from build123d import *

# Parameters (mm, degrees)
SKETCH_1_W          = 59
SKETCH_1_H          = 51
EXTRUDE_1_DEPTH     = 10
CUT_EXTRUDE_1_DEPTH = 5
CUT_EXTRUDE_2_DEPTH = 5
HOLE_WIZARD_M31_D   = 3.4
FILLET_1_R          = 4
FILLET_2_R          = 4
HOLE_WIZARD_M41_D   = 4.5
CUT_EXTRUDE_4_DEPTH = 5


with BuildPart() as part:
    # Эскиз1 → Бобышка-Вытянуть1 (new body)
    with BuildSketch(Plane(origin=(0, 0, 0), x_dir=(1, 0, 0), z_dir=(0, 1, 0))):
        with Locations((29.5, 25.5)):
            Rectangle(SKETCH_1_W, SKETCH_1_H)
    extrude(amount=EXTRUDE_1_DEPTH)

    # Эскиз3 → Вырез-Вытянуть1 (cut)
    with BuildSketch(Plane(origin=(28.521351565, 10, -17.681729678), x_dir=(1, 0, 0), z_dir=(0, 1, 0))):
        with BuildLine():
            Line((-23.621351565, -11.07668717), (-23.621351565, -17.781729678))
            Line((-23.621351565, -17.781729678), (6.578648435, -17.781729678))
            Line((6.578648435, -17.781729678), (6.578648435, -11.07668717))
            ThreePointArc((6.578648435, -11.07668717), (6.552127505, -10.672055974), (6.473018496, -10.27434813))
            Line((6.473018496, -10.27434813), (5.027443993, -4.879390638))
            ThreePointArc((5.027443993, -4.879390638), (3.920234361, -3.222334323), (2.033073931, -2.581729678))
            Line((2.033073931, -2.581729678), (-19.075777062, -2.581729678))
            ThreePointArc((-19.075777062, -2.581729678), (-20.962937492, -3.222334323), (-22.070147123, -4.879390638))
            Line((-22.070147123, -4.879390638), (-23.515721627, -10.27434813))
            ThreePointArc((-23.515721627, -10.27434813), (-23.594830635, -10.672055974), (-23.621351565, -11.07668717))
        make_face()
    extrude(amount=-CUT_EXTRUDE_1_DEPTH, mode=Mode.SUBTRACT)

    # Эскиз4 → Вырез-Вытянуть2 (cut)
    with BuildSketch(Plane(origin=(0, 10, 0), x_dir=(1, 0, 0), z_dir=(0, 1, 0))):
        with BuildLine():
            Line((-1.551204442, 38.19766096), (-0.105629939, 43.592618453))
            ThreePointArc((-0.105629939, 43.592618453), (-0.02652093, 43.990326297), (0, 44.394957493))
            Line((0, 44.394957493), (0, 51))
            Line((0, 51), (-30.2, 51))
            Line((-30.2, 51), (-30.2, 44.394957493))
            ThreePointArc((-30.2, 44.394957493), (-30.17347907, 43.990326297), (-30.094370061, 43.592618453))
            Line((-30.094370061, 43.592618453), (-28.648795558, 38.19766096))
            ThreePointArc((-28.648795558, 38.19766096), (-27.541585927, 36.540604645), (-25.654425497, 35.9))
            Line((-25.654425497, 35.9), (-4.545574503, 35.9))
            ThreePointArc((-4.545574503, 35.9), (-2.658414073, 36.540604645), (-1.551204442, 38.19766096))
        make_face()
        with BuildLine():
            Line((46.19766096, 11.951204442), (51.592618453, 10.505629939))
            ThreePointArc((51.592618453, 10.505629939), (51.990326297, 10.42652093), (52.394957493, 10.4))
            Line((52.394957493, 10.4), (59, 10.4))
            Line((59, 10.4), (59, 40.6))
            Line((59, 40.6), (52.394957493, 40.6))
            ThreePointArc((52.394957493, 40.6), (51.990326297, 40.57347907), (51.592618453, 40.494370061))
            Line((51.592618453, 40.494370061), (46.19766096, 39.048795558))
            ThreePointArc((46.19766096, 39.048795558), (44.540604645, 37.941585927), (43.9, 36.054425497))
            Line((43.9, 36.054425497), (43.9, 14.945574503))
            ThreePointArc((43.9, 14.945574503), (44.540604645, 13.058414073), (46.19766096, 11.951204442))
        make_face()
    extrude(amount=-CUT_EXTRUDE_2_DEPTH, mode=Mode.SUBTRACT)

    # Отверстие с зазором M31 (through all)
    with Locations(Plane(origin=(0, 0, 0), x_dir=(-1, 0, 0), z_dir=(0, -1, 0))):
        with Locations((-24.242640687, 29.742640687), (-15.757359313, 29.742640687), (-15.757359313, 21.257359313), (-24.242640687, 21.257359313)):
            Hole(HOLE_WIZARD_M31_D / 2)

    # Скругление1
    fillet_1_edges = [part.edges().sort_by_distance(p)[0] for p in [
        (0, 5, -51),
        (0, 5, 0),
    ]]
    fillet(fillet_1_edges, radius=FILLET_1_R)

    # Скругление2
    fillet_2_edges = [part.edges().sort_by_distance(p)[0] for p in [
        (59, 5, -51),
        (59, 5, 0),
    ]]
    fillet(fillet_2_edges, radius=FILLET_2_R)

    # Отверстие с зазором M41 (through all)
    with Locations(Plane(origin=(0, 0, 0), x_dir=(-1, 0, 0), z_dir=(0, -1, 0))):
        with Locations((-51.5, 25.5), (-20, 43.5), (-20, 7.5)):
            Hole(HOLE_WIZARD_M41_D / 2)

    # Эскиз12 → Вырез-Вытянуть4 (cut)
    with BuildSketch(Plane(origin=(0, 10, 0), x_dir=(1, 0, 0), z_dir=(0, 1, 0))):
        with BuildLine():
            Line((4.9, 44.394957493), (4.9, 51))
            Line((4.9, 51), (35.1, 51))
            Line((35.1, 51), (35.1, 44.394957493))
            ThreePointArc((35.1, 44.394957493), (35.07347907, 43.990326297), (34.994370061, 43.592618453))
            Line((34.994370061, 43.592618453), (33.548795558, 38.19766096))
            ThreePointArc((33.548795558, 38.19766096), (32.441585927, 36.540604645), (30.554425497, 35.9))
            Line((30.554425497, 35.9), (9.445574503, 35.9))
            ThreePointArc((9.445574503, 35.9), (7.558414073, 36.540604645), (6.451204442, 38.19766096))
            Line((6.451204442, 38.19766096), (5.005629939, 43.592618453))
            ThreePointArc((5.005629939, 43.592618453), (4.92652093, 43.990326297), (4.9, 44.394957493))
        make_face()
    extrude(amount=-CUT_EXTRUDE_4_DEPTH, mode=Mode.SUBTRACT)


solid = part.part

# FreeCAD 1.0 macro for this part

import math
import FreeCAD as App
import Part
import Sketcher
from FreeCAD import Vector
Q = App.Units.Quantity


def edges_at(feature, points):
    """Names of the edges that pass closest to the given points."""
    edges = feature.Shape.Edges
    near = lambda p: min(range(len(edges)), key=lambda i: edges[i].distToShape(Part.Vertex(*p))[0])
    return sorted({f"Edge{near(p) + 1}" for p in points})

doc = App.newDocument("Part")
body = doc.addObject("PartDesign::Body", "Body")

# Sketch on XZ plane
sketch1 = doc.addObject("Sketcher::SketchObject", "Sketch")
body.addObject(sketch1)
sketch1.AttachmentSupport = (doc.XZ_Plane, [""])
sketch1.MapMode = "FlatFace"
sketch1.addGeometry([
    Part.LineSegment(Vector(0, -51, 0), Vector(0, 0, 0)),
    Part.LineSegment(Vector(0, 0, 0), Vector(59, 0, 0)),
    Part.LineSegment(Vector(59, 0, 0), Vector(59, -51, 0)),
    Part.LineSegment(Vector(59, -51, 0), Vector(0, -51, 0)),
], False)
sketch1.addConstraint([
    Sketcher.Constraint("Coincident", 0, 2, 1, 1),
    Sketcher.Constraint("Coincident", 1, 2, 2, 1),
    Sketcher.Constraint("Coincident", 2, 2, 3, 1),
    Sketcher.Constraint("Coincident", 3, 2, 0, 1),
    Sketcher.Constraint("Vertical", 0),
    Sketcher.Constraint("Horizontal", 1),
    Sketcher.Constraint("Vertical", 2),
    Sketcher.Constraint("Horizontal", 3),
    Sketcher.Constraint("Coincident", 0, 2, -1, 1),
    Sketcher.Constraint("DistanceX", 1, 1, 1, 2, Q("59 mm")),
    Sketcher.Constraint("DistanceY", 0, 1, 0, 2, Q("51 mm")),
])
pad1 = doc.addObject("PartDesign::Pad", "Pad")
body.addObject(pad1)
pad1.Profile = sketch1
pad1.Length = 10
pad1.Reversed = True

# Sketch on XZ plane
sketch2 = doc.addObject("Sketcher::SketchObject", "Sketch001")
body.addObject(sketch2)
sketch2.AttachmentSupport = (doc.XZ_Plane, [""])
sketch2.MapMode = "FlatFace"
sketch2.AttachmentOffset = App.Placement(Vector(0, 0, -10), App.Rotation())
sketch2.addGeometry([
    Part.LineSegment(Vector(4.9, -6.6, 0), Vector(4.9, 0.1, 0)),  # 0
    Part.LineSegment(Vector(4.9, 0.1, 0), Vector(35.1, 0.1, 0)),  # 1
    Part.LineSegment(Vector(35.1, 0.1, 0), Vector(35.1, -6.6, 0)),  # 2
    Part.ArcOfCircle(Part.Circle(Vector(32, -6.6, 0), Vector(0, 0, 1), 3.1), math.radians(-15), math.radians(0)),  # 3
    Part.LineSegment(Vector(35, -7.4, 0), Vector(33.5, -12.8, 0)),  # 4
    Part.ArcOfCircle(Part.Circle(Vector(30.6, -12, 0), Vector(0, 0, 1), 3.1), math.radians(-90), math.radians(-15)),  # 5
    Part.LineSegment(Vector(30.6, -15.1, 0), Vector(9.4, -15.1, 0)),  # 6
    Part.ArcOfCircle(Part.Circle(Vector(9.4, -12, 0), Vector(0, 0, 1), 3.1), math.radians(-165), math.radians(-90)),  # 7
    Part.LineSegment(Vector(6.5, -12.8, 0), Vector(5, -7.4, 0)),  # 8
    Part.ArcOfCircle(Part.Circle(Vector(8, -6.6, 0), Vector(0, 0, 1), 3.1), math.radians(-180), math.radians(-165)),  # 9
], False)
sketch2.addConstraint([
    Sketcher.Constraint("Coincident", 0, 2, 1, 1),
    Sketcher.Constraint("Coincident", 1, 2, 2, 1),
    Sketcher.Constraint("Tangent", 2, 2, 3, 2),
    Sketcher.Constraint("Tangent", 3, 1, 4, 1),
    Sketcher.Constraint("Tangent", 4, 2, 5, 2),
    Sketcher.Constraint("Tangent", 5, 1, 6, 1),
    Sketcher.Constraint("Tangent", 6, 2, 7, 2),
    Sketcher.Constraint("Tangent", 7, 1, 8, 1),
    Sketcher.Constraint("Tangent", 8, 2, 9, 2),
    Sketcher.Constraint("Tangent", 9, 1, 0, 1),
    Sketcher.Constraint("Vertical", 0),
    Sketcher.Constraint("Horizontal", 1),
    Sketcher.Constraint("Vertical", 2),
    Sketcher.Constraint("Horizontal", 6),
    Sketcher.Constraint("Equal", 3, 5),
    Sketcher.Constraint("Equal", 5, 7),
    Sketcher.Constraint("Equal", 7, 9),
    Sketcher.Constraint("Horizontal", 3, 3, 9, 3),
    Sketcher.Constraint("Horizontal", 4, 2, 7, 1),
    Sketcher.Constraint("Radius", 3, Q("3.1 mm")),
    Sketcher.Constraint("Angle", 4, Q("-105 deg")),
    Sketcher.Constraint("DistanceX", 1, 1, 1, 2, Q("30.2 mm")),
    Sketcher.Constraint("DistanceX", -1, 1, 3, 3, Q("32 mm")),
    Sketcher.Constraint("DistanceY", 5, 3, -1, 1, Q("12 mm")),
    Sketcher.Constraint("DistanceY", -1, 1, 0, 2, Q("0.1 mm")),
    Sketcher.Constraint("DistanceX", 6, 2, 6, 1, Q("21.108851 mm")),
])
pocket1 = doc.addObject("PartDesign::Pocket", "Pocket")
body.addObject(pocket1)
pocket1.Profile = sketch2
pocket1.Length = 5
pocket1.Reversed = True

# Sketch on XZ plane
sketch3 = doc.addObject("Sketcher::SketchObject", "Sketch002")
body.addObject(sketch3)
sketch3.AttachmentSupport = (doc.XZ_Plane, [""])
sketch3.MapMode = "FlatFace"
sketch3.AttachmentOffset = App.Placement(Vector(0, 0, -10), App.Rotation())
sketch3.addGeometry([
    Part.LineSegment(Vector(-1.6, -38.2, 0), Vector(-0.1, -43.6, 0)),  # 0
    Part.ArcOfCircle(Part.Circle(Vector(-3.1, -44.4, 0), Vector(0, 0, 1), 3.1), math.radians(0), math.radians(15)),  # 1
    Part.LineSegment(Vector(0, -44.4, 0), Vector(0, -51, 0)),  # 2
    Part.LineSegment(Vector(0, -51, 0), Vector(-30.2, -51, 0)),  # 3
    Part.LineSegment(Vector(-30.2, -51, 0), Vector(-30.2, -44.4, 0)),  # 4
    Part.ArcOfCircle(Part.Circle(Vector(-27.1, -44.4, 0), Vector(0, 0, 1), 3.1), math.radians(165), math.radians(180)),  # 5
    Part.LineSegment(Vector(-30.1, -43.6, 0), Vector(-28.6, -38.2, 0)),  # 6
    Part.ArcOfCircle(Part.Circle(Vector(-25.7, -39, 0), Vector(0, 0, 1), 3.1), math.radians(90), math.radians(165)),  # 7
    Part.LineSegment(Vector(-25.7, -35.9, 0), Vector(-4.5, -35.9, 0)),  # 8
    Part.ArcOfCircle(Part.Circle(Vector(-4.5, -39, 0), Vector(0, 0, 1), 3.1), math.radians(15), math.radians(90)),  # 9
    Part.LineSegment(Vector(46.2, -12, 0), Vector(51.6, -10.5, 0)),  # 10
    Part.ArcOfCircle(Part.Circle(Vector(52.4, -13.5, 0), Vector(0, 0, 1), 3.1), math.radians(90), math.radians(105)),  # 11
    Part.LineSegment(Vector(52.4, -10.4, 0), Vector(59, -10.4, 0)),  # 12
    Part.LineSegment(Vector(59, -10.4, 0), Vector(59, -40.6, 0)),  # 13
    Part.LineSegment(Vector(59, -40.6, 0), Vector(52.4, -40.6, 0)),  # 14
    Part.ArcOfCircle(Part.Circle(Vector(52.4, -37.5, 0), Vector(0, 0, 1), 3.1), math.radians(-105), math.radians(-90)),  # 15
    Part.LineSegment(Vector(51.6, -40.5, 0), Vector(46.2, -39, 0)),  # 16
    Part.ArcOfCircle(Part.Circle(Vector(47, -36.1, 0), Vector(0, 0, 1), 3.1), math.radians(180), math.radians(255)),  # 17
    Part.LineSegment(Vector(43.9, -36.1, 0), Vector(43.9, -14.9, 0)),  # 18
    Part.ArcOfCircle(Part.Circle(Vector(47, -14.9, 0), Vector(0, 0, 1), 3.1), math.radians(105), math.radians(180)),  # 19
], False)
sketch3.addConstraint([
    Sketcher.Constraint("Tangent", 0, 2, 1, 2),
    Sketcher.Constraint("Tangent", 1, 1, 2, 1),
    Sketcher.Constraint("Coincident", 2, 2, 3, 1),
    Sketcher.Constraint("Coincident", 3, 2, 4, 1),
    Sketcher.Constraint("Tangent", 4, 2, 5, 2),
    Sketcher.Constraint("Tangent", 5, 1, 6, 1),
    Sketcher.Constraint("Tangent", 6, 2, 7, 2),
    Sketcher.Constraint("Tangent", 7, 1, 8, 1),
    Sketcher.Constraint("Tangent", 8, 2, 9, 2),
    Sketcher.Constraint("Tangent", 9, 1, 0, 1),
    Sketcher.Constraint("Tangent", 10, 2, 11, 2),
    Sketcher.Constraint("Tangent", 11, 1, 12, 1),
    Sketcher.Constraint("Coincident", 12, 2, 13, 1),
    Sketcher.Constraint("Coincident", 13, 2, 14, 1),
    Sketcher.Constraint("Tangent", 14, 2, 15, 2),
    Sketcher.Constraint("Tangent", 15, 1, 16, 1),
    Sketcher.Constraint("Tangent", 16, 2, 17, 2),
    Sketcher.Constraint("Tangent", 17, 1, 18, 1),
    Sketcher.Constraint("Tangent", 18, 2, 19, 2),
    Sketcher.Constraint("Tangent", 19, 1, 10, 1),
    Sketcher.Constraint("Vertical", 2),
    Sketcher.Constraint("Horizontal", 3),
    Sketcher.Constraint("Vertical", 4),
    Sketcher.Constraint("Horizontal", 8),
    Sketcher.Constraint("Horizontal", 12),
    Sketcher.Constraint("Vertical", 13),
    Sketcher.Constraint("Horizontal", 14),
    Sketcher.Constraint("Vertical", 18),
    Sketcher.Constraint("Equal", 1, 5),
    Sketcher.Constraint("Equal", 5, 7),
    Sketcher.Constraint("Equal", 7, 9),
    Sketcher.Constraint("Equal", 9, 11),
    Sketcher.Constraint("Equal", 11, 15),
    Sketcher.Constraint("Equal", 15, 17),
    Sketcher.Constraint("Equal", 17, 19),
    Sketcher.Constraint("PointOnObject", 1, 1, -2),
    Sketcher.Constraint("Perpendicular", 0, 10),
    Sketcher.Constraint("Perpendicular", 6, 16),
    Sketcher.Constraint("Horizontal", 1, 3, 5, 3),
    Sketcher.Constraint("Horizontal", 0, 2, 5, 1),
    Sketcher.Constraint("Vertical", 11, 3, 15, 3),
    Sketcher.Constraint("Equal", 14, 2),
    Sketcher.Constraint("Equal", 3, 13),
    Sketcher.Constraint("Equal", 8, 18),
    Sketcher.Constraint("Radius", 1, Q("3.1 mm")),
    Sketcher.Constraint("Angle", 0, Q("-75 deg")),
    Sketcher.Constraint("DistanceX", 3, 2, 3, 1, Q("30.2 mm")),
    Sketcher.Constraint("DistanceY", 7, 3, -1, 1, Q("39 mm")),
    Sketcher.Constraint("DistanceX", -1, 1, 17, 3, Q("47 mm")),
    Sketcher.Constraint("DistanceY", 2, 2, -1, 1, Q("51 mm")),
    Sketcher.Constraint("DistanceY", 11, 3, -1, 1, Q("13.5 mm")),
    Sketcher.Constraint("DistanceX", 8, 1, 8, 2, Q("21.108851 mm")),
])
pocket2 = doc.addObject("PartDesign::Pocket", "Pocket001")
body.addObject(pocket2)
pocket2.Profile = sketch3
pocket2.Length = 5
pocket2.Reversed = True

# Sketch on XZ plane
sketch4 = doc.addObject("Sketcher::SketchObject", "Sketch003")
body.addObject(sketch4)
sketch4.AttachmentSupport = (doc.XZ_Plane, [""])
sketch4.MapMode = "FlatFace"
sketch4.addGeometry([
    Part.Circle(Vector(24.2, -29.7, 0), Vector(0, 0, 1), 1.7),
    Part.Circle(Vector(15.8, -29.7, 0), Vector(0, 0, 1), 1.7),
    Part.Circle(Vector(15.8, -21.3, 0), Vector(0, 0, 1), 1.7),
    Part.Circle(Vector(24.2, -21.3, 0), Vector(0, 0, 1), 1.7),
], False)
sketch4.addConstraint([
    Sketcher.Constraint("Equal", 0, 1),
    Sketcher.Constraint("Equal", 1, 2),
    Sketcher.Constraint("Equal", 2, 3),
    Sketcher.Constraint("Horizontal", 0, 3, 1, 3),
    Sketcher.Constraint("Horizontal", 2, 3, 3, 3),
    Sketcher.Constraint("Vertical", 1, 3, 2, 3),
    Sketcher.Constraint("Vertical", 0, 3, 3, 3),
    Sketcher.Constraint("Diameter", 0, Q("3.4 mm")),
    Sketcher.Constraint("DistanceX", -1, 1, 0, 3, Q("24.242641 mm")),
    Sketcher.Constraint("DistanceY", 0, 3, -1, 1, Q("29.742641 mm")),
    Sketcher.Constraint("DistanceX", -1, 1, 1, 3, Q("15.757359 mm")),
    Sketcher.Constraint("DistanceY", 2, 3, -1, 1, Q("21.257359 mm")),
])
doc.recompute()
hole = doc.addObject("PartDesign::Hole", "Hole")
body.addObject(hole)
hole.Profile = sketch4
hole.ThreadType = "None"
hole.Diameter = 3.4
hole.DepthType = "ThroughAll"
doc.recompute()

fillet = doc.addObject("PartDesign::Fillet", "Fillet")
body.addObject(fillet)
fillet.Base = (hole, edges_at(hole, [(0, 5, -51), (0, 5, 0)]))
fillet.Radius = 4
doc.recompute()

fillet2 = doc.addObject("PartDesign::Fillet", "Fillet001")
body.addObject(fillet2)
fillet2.Base = (fillet, edges_at(fillet, [(59, 5, -51), (59, 5, 0)]))
fillet2.Radius = 4

# Sketch on XZ plane
sketch5 = doc.addObject("Sketcher::SketchObject", "Sketch004")
body.addObject(sketch5)
sketch5.AttachmentSupport = (doc.XZ_Plane, [""])
sketch5.MapMode = "FlatFace"
sketch5.addGeometry([
    Part.Circle(Vector(51.5, -25.5, 0), Vector(0, 0, 1), 2.2),
    Part.Circle(Vector(20, -43.5, 0), Vector(0, 0, 1), 2.2),
    Part.Circle(Vector(20, -7.5, 0), Vector(0, 0, 1), 2.2),
], False)
sketch5.addConstraint([
    Sketcher.Constraint("Equal", 0, 1),
    Sketcher.Constraint("Equal", 1, 2),
    Sketcher.Constraint("Vertical", 1, 3, 2, 3),
    Sketcher.Constraint("Diameter", 0, Q("4.5 mm")),
    Sketcher.Constraint("DistanceX", -1, 1, 1, 3, Q("20 mm")),
    Sketcher.Constraint("DistanceY", 1, 3, 0, 3, Q("18 mm")),
    Sketcher.Constraint("DistanceY", 1, 3, 2, 3, Q("36 mm")),
    Sketcher.Constraint("DistanceX", -1, 1, 0, 3, Q("51.5 mm")),
    Sketcher.Constraint("DistanceY", 0, 3, -1, 1, Q("25.5 mm")),
])
doc.recompute()
hole2 = doc.addObject("PartDesign::Hole", "Hole001")
body.addObject(hole2)
hole2.Profile = sketch5
hole2.ThreadType = "None"
hole2.Diameter = 4.5
hole2.DepthType = "ThroughAll"

# Sketch on XZ plane
sketch6 = doc.addObject("Sketcher::SketchObject", "Sketch005")
body.addObject(sketch6)
sketch6.AttachmentSupport = (doc.XZ_Plane, [""])
sketch6.MapMode = "FlatFace"
sketch6.AttachmentOffset = App.Placement(Vector(0, 0, -10), App.Rotation())
sketch6.addGeometry([
    Part.LineSegment(Vector(4.9, -51, 0), Vector(4.9, -44.4, 0)),  # 0
    Part.ArcOfCircle(Part.Circle(Vector(8, -44.4, 0), Vector(0, 0, 1), 3.1), math.radians(165), math.radians(180)),  # 1
    Part.LineSegment(Vector(5, -43.6, 0), Vector(6.5, -38.2, 0)),  # 2
    Part.ArcOfCircle(Part.Circle(Vector(9.4, -39, 0), Vector(0, 0, 1), 3.1), math.radians(90), math.radians(165)),  # 3
    Part.LineSegment(Vector(9.4, -35.9, 0), Vector(30.6, -35.9, 0)),  # 4
    Part.ArcOfCircle(Part.Circle(Vector(30.6, -39, 0), Vector(0, 0, 1), 3.1), math.radians(15), math.radians(90)),  # 5
    Part.LineSegment(Vector(33.5, -38.2, 0), Vector(35, -43.6, 0)),  # 6
    Part.ArcOfCircle(Part.Circle(Vector(32, -44.4, 0), Vector(0, 0, 1), 3.1), math.radians(0), math.radians(15)),  # 7
    Part.LineSegment(Vector(35.1, -44.4, 0), Vector(35.1, -51, 0)),  # 8
    Part.LineSegment(Vector(35.1, -51, 0), Vector(4.9, -51, 0)),  # 9
], False)
sketch6.addConstraint([
    Sketcher.Constraint("Tangent", 0, 2, 1, 2),
    Sketcher.Constraint("Tangent", 1, 1, 2, 1),
    Sketcher.Constraint("Tangent", 2, 2, 3, 2),
    Sketcher.Constraint("Tangent", 3, 1, 4, 1),
    Sketcher.Constraint("Tangent", 4, 2, 5, 2),
    Sketcher.Constraint("Tangent", 5, 1, 6, 1),
    Sketcher.Constraint("Tangent", 6, 2, 7, 2),
    Sketcher.Constraint("Tangent", 7, 1, 8, 1),
    Sketcher.Constraint("Coincident", 8, 2, 9, 1),
    Sketcher.Constraint("Coincident", 9, 2, 0, 1),
    Sketcher.Constraint("Vertical", 0),
    Sketcher.Constraint("Horizontal", 4),
    Sketcher.Constraint("Vertical", 8),
    Sketcher.Constraint("Horizontal", 9),
    Sketcher.Constraint("Equal", 1, 3),
    Sketcher.Constraint("Equal", 3, 5),
    Sketcher.Constraint("Equal", 5, 7),
    Sketcher.Constraint("Horizontal", 1, 3, 7, 3),
    Sketcher.Constraint("Horizontal", 2, 2, 5, 1),
    Sketcher.Constraint("Radius", 1, Q("3.1 mm")),
    Sketcher.Constraint("Angle", 2, Q("75 deg")),
    Sketcher.Constraint("DistanceX", 9, 2, 9, 1, Q("30.2 mm")),
    Sketcher.Constraint("DistanceX", -1, 1, 1, 3, Q("8 mm")),
    Sketcher.Constraint("DistanceY", 3, 3, -1, 1, Q("39 mm")),
    Sketcher.Constraint("DistanceY", 8, 2, -1, 1, Q("51 mm")),
    Sketcher.Constraint("DistanceX", 4, 1, 4, 2, Q("21.108851 mm")),
])
pocket3 = doc.addObject("PartDesign::Pocket", "Pocket002")
body.addObject(pocket3)
pocket3.Profile = sketch6
pocket3.Length = 5
pocket3.Reversed = True

doc.recompute()
